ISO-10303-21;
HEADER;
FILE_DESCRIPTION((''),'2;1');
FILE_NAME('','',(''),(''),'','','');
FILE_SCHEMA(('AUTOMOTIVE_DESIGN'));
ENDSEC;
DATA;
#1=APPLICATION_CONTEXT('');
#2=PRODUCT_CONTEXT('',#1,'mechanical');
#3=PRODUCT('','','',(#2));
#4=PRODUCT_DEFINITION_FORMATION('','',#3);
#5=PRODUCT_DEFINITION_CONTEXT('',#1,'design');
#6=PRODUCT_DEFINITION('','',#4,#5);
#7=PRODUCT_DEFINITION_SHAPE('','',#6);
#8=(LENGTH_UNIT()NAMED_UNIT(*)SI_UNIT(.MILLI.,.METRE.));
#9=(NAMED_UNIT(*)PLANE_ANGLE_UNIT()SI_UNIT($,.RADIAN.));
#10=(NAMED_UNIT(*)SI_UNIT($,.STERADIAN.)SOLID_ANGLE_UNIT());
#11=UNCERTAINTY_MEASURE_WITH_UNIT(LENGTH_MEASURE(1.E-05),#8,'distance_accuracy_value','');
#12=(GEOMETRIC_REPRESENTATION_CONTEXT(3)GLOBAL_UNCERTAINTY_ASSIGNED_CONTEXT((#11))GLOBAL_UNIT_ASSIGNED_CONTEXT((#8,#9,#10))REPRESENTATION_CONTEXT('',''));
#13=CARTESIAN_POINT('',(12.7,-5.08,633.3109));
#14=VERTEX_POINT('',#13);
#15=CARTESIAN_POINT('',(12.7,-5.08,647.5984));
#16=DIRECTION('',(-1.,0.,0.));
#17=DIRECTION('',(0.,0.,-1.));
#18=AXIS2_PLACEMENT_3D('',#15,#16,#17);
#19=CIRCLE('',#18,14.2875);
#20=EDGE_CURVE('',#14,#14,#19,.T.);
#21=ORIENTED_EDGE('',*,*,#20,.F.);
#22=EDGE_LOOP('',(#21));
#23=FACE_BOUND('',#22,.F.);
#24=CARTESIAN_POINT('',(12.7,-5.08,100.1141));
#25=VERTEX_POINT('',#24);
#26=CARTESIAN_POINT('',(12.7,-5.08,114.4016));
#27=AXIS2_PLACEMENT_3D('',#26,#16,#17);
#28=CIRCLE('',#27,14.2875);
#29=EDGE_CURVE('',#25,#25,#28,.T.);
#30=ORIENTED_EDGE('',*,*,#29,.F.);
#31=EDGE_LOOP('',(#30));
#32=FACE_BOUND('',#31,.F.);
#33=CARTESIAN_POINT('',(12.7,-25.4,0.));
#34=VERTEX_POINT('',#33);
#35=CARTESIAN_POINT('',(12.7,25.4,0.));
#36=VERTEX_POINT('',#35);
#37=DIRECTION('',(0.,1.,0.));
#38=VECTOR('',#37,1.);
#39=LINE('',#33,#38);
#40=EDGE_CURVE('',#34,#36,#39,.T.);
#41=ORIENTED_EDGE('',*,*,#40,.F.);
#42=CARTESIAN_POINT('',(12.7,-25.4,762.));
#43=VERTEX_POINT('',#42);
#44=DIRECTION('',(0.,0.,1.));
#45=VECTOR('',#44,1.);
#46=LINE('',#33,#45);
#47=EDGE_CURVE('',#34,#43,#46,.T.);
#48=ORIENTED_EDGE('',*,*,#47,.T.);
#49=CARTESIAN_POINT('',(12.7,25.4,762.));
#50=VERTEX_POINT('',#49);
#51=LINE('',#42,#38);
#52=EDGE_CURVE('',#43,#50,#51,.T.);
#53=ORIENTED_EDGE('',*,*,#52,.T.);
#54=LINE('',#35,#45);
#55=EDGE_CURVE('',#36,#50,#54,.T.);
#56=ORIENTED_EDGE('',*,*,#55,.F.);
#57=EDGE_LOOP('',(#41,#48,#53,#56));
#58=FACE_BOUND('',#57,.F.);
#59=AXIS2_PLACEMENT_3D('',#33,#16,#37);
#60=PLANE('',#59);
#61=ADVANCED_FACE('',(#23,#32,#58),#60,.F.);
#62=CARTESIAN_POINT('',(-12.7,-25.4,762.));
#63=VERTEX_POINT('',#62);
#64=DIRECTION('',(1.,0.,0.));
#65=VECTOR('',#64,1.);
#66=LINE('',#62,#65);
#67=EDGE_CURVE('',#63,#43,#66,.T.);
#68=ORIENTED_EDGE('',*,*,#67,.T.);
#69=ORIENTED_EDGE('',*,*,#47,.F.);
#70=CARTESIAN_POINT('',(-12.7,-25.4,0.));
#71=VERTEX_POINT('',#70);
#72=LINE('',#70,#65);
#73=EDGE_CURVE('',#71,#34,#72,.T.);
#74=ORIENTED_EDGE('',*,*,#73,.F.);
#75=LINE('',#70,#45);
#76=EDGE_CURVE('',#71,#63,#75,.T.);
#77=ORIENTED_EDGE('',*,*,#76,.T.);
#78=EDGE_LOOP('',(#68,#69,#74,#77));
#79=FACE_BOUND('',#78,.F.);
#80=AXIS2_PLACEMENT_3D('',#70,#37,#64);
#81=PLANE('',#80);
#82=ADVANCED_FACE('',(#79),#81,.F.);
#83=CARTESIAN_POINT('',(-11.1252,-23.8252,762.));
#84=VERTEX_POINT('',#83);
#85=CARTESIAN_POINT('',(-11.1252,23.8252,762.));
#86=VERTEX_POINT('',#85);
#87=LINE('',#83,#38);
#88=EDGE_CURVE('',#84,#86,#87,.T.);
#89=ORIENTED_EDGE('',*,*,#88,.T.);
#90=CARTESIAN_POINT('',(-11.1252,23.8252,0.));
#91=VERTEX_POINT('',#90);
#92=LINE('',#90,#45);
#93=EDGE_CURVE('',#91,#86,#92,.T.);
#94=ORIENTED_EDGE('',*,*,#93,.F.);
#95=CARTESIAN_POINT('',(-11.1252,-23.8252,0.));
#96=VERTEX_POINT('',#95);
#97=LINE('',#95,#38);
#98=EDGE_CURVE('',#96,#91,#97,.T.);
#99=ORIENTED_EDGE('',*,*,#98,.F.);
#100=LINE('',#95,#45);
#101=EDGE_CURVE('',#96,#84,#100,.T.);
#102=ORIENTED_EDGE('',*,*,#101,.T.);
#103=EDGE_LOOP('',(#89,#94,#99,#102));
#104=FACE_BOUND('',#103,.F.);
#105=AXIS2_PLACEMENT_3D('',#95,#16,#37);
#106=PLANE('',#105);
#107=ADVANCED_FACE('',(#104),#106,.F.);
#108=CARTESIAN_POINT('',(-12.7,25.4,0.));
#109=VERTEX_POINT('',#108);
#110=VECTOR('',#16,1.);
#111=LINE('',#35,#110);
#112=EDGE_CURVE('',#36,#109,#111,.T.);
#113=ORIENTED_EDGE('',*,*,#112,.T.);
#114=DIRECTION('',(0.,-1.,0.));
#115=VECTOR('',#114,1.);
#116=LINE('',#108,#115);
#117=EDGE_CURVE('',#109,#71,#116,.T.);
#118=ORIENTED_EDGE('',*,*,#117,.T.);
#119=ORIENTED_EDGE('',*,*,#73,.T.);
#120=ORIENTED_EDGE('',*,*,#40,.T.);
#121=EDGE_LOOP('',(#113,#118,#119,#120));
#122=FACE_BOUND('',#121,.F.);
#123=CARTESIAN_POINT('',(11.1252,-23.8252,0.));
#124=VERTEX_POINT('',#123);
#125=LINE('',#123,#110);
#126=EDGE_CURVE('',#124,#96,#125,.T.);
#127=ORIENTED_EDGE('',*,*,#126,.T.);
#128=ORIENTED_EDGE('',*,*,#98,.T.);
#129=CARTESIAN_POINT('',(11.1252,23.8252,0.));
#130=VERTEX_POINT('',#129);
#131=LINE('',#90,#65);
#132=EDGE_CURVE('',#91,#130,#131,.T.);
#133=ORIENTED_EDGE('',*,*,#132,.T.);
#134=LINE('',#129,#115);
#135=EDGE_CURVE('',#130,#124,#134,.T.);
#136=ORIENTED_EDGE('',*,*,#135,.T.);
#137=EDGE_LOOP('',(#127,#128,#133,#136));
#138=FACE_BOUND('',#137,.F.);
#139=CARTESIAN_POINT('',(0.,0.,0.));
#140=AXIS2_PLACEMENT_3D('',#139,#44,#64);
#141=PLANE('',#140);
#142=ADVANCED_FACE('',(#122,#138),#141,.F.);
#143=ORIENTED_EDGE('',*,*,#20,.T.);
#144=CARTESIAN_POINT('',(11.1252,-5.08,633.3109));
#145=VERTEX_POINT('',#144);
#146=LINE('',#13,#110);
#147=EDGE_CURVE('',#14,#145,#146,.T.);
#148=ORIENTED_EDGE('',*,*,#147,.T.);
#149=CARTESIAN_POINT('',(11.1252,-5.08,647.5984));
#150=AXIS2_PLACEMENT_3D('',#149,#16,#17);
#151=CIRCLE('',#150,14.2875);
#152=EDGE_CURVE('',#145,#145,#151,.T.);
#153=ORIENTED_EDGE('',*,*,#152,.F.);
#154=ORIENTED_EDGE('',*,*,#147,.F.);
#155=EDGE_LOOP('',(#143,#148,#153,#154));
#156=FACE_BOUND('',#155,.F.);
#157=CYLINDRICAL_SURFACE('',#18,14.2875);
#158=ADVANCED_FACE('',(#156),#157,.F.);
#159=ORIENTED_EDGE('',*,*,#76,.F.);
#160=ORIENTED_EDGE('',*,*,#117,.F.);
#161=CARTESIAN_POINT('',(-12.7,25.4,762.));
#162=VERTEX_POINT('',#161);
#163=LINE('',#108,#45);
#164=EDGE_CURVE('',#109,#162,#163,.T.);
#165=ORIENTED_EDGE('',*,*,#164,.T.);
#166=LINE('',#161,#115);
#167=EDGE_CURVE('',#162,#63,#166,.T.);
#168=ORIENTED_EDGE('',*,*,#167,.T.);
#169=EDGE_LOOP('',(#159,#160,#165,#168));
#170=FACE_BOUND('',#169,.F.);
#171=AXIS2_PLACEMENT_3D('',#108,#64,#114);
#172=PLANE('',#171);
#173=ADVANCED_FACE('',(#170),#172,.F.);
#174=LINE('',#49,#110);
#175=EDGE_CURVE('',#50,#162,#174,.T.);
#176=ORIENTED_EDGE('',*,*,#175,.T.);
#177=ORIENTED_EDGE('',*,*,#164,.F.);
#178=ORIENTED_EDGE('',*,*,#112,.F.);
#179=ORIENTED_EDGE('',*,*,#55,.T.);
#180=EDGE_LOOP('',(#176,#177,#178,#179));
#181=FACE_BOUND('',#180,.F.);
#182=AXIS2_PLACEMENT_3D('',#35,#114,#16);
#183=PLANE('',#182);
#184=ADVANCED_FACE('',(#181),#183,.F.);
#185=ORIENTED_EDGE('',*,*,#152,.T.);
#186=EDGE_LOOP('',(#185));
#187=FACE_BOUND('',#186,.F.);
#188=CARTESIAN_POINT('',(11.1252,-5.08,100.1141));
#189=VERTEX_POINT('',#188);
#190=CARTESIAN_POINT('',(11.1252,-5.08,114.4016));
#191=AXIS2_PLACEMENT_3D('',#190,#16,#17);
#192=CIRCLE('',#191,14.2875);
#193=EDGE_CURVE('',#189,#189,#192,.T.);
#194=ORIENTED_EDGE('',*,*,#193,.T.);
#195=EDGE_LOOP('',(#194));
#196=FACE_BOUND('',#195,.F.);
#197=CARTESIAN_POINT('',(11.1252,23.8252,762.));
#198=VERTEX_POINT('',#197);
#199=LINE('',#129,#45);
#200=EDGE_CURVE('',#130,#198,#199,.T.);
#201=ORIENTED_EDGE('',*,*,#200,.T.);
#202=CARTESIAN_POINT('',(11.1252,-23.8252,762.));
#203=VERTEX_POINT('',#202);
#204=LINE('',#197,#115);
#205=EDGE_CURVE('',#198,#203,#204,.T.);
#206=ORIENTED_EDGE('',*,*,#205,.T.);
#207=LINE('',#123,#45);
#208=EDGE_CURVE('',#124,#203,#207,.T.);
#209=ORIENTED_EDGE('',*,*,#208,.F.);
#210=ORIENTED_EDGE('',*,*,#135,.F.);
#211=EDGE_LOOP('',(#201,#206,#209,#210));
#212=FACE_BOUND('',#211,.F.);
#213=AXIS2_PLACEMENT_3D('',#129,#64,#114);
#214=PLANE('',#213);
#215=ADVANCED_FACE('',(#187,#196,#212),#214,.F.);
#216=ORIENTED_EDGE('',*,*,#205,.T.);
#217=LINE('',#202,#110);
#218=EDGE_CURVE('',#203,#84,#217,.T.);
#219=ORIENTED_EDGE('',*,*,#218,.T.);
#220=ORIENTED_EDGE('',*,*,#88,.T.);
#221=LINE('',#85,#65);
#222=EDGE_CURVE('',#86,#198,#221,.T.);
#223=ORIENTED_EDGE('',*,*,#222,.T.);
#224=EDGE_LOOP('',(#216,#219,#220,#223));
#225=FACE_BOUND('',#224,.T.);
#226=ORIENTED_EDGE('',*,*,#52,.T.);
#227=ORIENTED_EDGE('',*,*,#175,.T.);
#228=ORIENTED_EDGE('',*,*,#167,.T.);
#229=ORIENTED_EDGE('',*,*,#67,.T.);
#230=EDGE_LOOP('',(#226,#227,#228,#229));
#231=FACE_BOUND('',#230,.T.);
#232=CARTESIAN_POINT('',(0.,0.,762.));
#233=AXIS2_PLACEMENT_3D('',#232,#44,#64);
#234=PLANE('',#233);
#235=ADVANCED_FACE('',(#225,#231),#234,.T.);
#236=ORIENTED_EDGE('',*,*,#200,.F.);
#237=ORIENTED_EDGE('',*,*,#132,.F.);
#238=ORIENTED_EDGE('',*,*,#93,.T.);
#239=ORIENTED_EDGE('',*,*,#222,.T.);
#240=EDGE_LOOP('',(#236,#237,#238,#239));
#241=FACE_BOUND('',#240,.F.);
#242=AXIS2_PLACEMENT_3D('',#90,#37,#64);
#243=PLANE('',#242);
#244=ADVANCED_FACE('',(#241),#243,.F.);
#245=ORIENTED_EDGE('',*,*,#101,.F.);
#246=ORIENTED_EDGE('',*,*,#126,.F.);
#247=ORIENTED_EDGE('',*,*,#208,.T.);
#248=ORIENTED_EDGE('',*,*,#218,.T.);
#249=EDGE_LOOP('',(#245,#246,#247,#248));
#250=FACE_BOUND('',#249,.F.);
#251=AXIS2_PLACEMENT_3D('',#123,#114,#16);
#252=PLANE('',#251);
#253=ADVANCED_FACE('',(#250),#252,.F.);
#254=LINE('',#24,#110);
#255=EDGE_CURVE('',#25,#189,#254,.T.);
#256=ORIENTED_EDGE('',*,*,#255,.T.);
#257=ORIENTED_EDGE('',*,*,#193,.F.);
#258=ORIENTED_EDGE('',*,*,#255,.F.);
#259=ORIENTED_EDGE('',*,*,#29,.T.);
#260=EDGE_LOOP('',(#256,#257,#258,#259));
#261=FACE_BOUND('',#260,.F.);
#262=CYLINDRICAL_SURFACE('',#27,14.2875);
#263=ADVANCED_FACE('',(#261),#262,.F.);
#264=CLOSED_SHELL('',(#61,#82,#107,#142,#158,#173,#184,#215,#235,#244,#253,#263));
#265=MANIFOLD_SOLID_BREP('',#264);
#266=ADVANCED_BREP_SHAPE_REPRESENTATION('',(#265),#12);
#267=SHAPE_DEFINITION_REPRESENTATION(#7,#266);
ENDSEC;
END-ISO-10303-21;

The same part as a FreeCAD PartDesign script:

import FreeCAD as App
import Part
import Sketcher
Q = App.Units.Quantity


def add_polygon(sketch, points):
    """Adds a closed chain of lines whose ends are joined by coincident constraints."""
    first, n = sketch.GeometryCount, len(points)
    for a, b in zip(points, points[1:] + points[:1]):
        sketch.addGeometry(Part.LineSegment(App.Vector(*a, 0), App.Vector(*b, 0)), False)
    for i in range(n):
        sketch.addConstraint(Sketcher.Constraint("Coincident", first + i, 2, first + (i + 1) % n, 1))

doc = App.newDocument("Part")
body = doc.addObject("PartDesign::Body", "Body")

# Sketch on XY plane
sketch1 = doc.addObject("Sketcher::SketchObject", "Sketch")
body.addObject(sketch1)
sketch1.AttachmentSupport = (doc.XY_Plane, [""])
sketch1.MapMode = "FlatFace"
add_polygon(sketch1, [(-13, 25), (-13, -25), (13, -25), (13, 25)])  # lines 0-3
add_polygon(sketch1, [(-11, -24), (-11, 24), (11, 24), (11, -24)])  # lines 4-7
sketch1.addConstraint([
    Sketcher.Constraint("Vertical", 0),
    Sketcher.Constraint("Horizontal", 1),
    Sketcher.Constraint("Vertical", 2),
    Sketcher.Constraint("Horizontal", 3),
    Sketcher.Constraint("Vertical", 4),
    Sketcher.Constraint("Horizontal", 5),
    Sketcher.Constraint("Vertical", 6),
    Sketcher.Constraint("Horizontal", 7),
    Sketcher.Constraint("Symmetric", 0, 2, 2, 2, -1, 1),
    Sketcher.Constraint("Symmetric", 4, 2, 6, 2, -1, 1),
    Sketcher.Constraint("DistanceX", 1, 1, 1, 2, Q("1 in")),
    Sketcher.Constraint("DistanceY", 0, 2, 0, 1, Q("2 in")),
    Sketcher.Constraint("DistanceX", 5, 1, 5, 2, Q("0.876 in")),
    Sketcher.Constraint("DistanceY", 4, 1, 4, 2, Q("1.876 in")),
])
pad1 = doc.addObject("PartDesign::Pad", "Pad")
body.addObject(pad1)
pad1.Profile = sketch1
pad1.Length = Q("30 in")

# Sketch on YZ plane
sketch2 = doc.addObject("Sketcher::SketchObject", "Sketch001")
body.addObject(sketch2)
sketch2.AttachmentSupport = (doc.YZ_Plane, [""])
sketch2.MapMode = "FlatFace"
sketch2.AttachmentOffset = App.Placement(App.Vector(0, 0, 0.5 * 25.4), App.Rotation())
sketch2.addGeometry(Part.Circle(App.Vector(-5, 114, 0), App.Vector(0, 0, 1), 14), False)
sketch2.addConstraint([
    Sketcher.Constraint("Diameter", 0, Q("1.125 in")),
    Sketcher.Constraint("DistanceX", 0, 3, -1, 1, Q("0.2 in")),
    Sketcher.Constraint("DistanceY", -1, 1, 0, 3, Q("4.504 in")),
])
doc.recompute()
hole = doc.addObject("PartDesign::Hole", "Hole")
body.addObject(hole)
hole.Profile = sketch2
hole.ThreadType = "None"
hole.Diameter = Q("1.125 in")
hole.DepthType = "Dimension"
hole.Depth = Q("0.2 in")
hole.DrillPoint = "Angled"
hole.DrillPointAngle = 118

# Sketch on YZ plane
sketch3 = doc.addObject("Sketcher::SketchObject", "Sketch002")
body.addObject(sketch3)
sketch3.AttachmentSupport = (doc.YZ_Plane, [""])
sketch3.MapMode = "FlatFace"
sketch3.AttachmentOffset = App.Placement(App.Vector(0, 0, 0.5 * 25.4), App.Rotation())
sketch3.addGeometry(Part.Circle(App.Vector(-5, 648, 0), App.Vector(0, 0, 1), 14), False)
sketch3.addConstraint([
    Sketcher.Constraint("Diameter", 0, Q("1.125 in")),
    Sketcher.Constraint("DistanceX", 0, 3, -1, 1, Q("0.2 in")),
    Sketcher.Constraint("DistanceY", -1, 1, 0, 3, Q("25.496 in")),
])
doc.recompute()
hole2 = doc.addObject("PartDesign::Hole", "Hole001")
body.addObject(hole2)
hole2.Profile = sketch3
hole2.ThreadType = "None"
hole2.Diameter = Q("1.125 in")
hole2.DepthType = "Dimension"
hole2.Depth = Q("0.2 in")
hole2.DrillPoint = "Angled"
hole2.DrillPointAngle = 118

doc.recompute()
